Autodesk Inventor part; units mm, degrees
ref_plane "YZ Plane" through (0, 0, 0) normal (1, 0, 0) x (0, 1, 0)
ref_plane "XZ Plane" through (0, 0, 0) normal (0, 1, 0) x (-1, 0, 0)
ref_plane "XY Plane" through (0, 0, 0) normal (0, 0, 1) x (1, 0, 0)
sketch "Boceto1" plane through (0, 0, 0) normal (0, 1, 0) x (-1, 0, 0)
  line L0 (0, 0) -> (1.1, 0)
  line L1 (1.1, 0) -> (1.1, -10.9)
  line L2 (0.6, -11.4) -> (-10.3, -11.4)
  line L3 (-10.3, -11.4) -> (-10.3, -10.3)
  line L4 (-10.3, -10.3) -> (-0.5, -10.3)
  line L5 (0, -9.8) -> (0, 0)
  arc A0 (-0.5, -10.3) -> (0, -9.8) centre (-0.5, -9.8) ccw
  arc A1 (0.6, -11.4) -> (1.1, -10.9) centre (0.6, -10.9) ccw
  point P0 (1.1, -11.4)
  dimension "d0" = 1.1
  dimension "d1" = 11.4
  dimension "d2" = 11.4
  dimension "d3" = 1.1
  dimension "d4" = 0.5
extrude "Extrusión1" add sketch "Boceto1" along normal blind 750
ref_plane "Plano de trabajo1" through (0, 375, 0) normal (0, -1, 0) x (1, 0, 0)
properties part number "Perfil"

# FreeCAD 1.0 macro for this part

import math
import FreeCAD as App
import Part
import Sketcher

doc = App.newDocument("Part")
params = doc.addObject("Spreadsheet::Sheet", "Params")
for row, (alias, value) in enumerate([
    ("sketch1_radius", "0.5 mm"),
    ("sketch1_width", "1.1 mm"),
    ("pad1_length", "750 mm"),
], start=1):
    params.set(f"A{row}", alias)
    params.set(f"B{row}", "=" + value)
    params.setAlias(f"B{row}", alias)

body = doc.addObject("PartDesign::Body", "Body")

# Sketch on XZ plane
sketch1 = doc.addObject("Sketcher::SketchObject", "Sketch")
body.addObject(sketch1)
sketch1.AttachmentSupport = (doc.XZ_Plane, [""])
sketch1.MapMode = "FlatFace"
sketch1.addGeometry([
    Part.LineSegment(App.Vector(-1.1, 0, 0), App.Vector(0, 0, 0)),  # 0
    Part.LineSegment(App.Vector(0, 0, 0), App.Vector(0, -9.8, 0)),  # 1
    Part.ArcOfCircle(Part.Circle(App.Vector(0.5, -9.8, 0), App.Vector(0, 0, 1), 0.5), math.radians(180), math.radians(270)),  # 2
    Part.LineSegment(App.Vector(0.5, -10.3, 0), App.Vector(10.3, -10.3, 0)),  # 3
    Part.LineSegment(App.Vector(10.3, -10.3, 0), App.Vector(10.3, -11.4, 0)),  # 4
    Part.LineSegment(App.Vector(10.3, -11.4, 0), App.Vector(-0.6, -11.4, 0)),  # 5
    Part.ArcOfCircle(Part.Circle(App.Vector(-0.6, -10.9, 0), App.Vector(0, 0, 1), 0.5), math.radians(180), math.radians(270)),  # 6
    Part.LineSegment(App.Vector(-1.1, -10.9, 0), App.Vector(-1.1, 0, 0)),  # 7
], False)
sketch1.addConstraint([
    Sketcher.Constraint("Coincident", 0, 2, 1, 1),
    Sketcher.Constraint("Tangent", 1, 2, 2, 1),
    Sketcher.Constraint("Tangent", 2, 2, 3, 1),
    Sketcher.Constraint("Coincident", 3, 2, 4, 1),
    Sketcher.Constraint("Coincident", 4, 2, 5, 1),
    Sketcher.Constraint("Tangent", 5, 2, 6, 2),
    Sketcher.Constraint("Tangent", 6, 1, 7, 1),
    Sketcher.Constraint("Coincident", 7, 2, 0, 1),
    Sketcher.Constraint("Horizontal", 0),
    Sketcher.Constraint("Vertical", 1),
    Sketcher.Constraint("Horizontal", 3),
    Sketcher.Constraint("Vertical", 4),
    Sketcher.Constraint("Horizontal", 5),
    Sketcher.Constraint("Vertical", 7),
    Sketcher.Constraint("Coincident", 0, 2, -1, 1),
    Sketcher.Constraint("Equal", 2, 6),
    Sketcher.Constraint("Equal", 3, 1),
    Sketcher.Constraint("Equal", 0, 4),
    Sketcher.Constraint("Radius", 2, 0.5),
    Sketcher.Constraint("DistanceX", 0, 1, 0, 2, 1.1),
    Sketcher.Constraint("DistanceY", 4, 2, -1, 1, 11.4),
])
sketch1.setExpression("Constraints[18]", "Params.sketch1_radius")
sketch1.setExpression("Constraints[19]", "Params.sketch1_width")
pad1 = doc.addObject("PartDesign::Pad", "Pad")
body.addObject(pad1)
pad1.Profile = sketch1
pad1.setExpression("Length", "Params.pad1_length")
pad1.Reversed = True

doc.recompute()
